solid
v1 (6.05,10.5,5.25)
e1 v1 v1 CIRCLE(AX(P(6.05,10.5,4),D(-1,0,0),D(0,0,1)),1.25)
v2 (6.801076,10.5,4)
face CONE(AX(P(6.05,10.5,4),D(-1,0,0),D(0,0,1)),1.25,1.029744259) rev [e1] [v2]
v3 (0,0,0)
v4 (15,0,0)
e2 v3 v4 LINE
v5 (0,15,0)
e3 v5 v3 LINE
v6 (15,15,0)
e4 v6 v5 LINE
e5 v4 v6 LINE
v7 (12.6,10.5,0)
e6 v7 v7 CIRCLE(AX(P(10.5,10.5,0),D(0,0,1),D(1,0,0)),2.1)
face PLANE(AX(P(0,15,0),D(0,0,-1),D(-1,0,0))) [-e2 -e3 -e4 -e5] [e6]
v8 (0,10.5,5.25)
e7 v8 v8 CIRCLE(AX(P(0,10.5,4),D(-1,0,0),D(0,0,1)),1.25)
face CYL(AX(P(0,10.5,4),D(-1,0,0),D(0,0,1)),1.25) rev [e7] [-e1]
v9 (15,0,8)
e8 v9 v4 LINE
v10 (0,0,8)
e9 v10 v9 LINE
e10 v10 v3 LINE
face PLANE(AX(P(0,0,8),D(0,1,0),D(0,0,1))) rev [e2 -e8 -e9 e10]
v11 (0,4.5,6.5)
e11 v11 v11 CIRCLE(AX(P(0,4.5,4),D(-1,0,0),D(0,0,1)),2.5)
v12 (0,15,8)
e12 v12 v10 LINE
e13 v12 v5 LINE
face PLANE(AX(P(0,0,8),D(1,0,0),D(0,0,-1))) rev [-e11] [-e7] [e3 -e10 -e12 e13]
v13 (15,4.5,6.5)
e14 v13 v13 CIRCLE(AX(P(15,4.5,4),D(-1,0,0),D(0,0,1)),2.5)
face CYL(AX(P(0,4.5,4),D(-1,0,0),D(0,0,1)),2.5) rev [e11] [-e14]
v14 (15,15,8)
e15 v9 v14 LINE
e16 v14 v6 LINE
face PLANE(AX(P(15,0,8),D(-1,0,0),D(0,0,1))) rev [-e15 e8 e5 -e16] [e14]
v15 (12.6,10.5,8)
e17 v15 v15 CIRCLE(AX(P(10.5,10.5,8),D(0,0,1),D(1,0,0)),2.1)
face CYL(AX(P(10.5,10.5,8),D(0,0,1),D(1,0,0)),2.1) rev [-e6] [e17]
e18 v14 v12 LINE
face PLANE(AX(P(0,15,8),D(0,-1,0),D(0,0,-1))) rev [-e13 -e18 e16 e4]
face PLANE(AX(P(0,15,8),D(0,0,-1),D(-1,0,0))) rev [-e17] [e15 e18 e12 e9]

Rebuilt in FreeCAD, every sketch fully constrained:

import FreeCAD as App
import Part
import Sketcher


def add_polygon(sketch, points):
    """Adds a closed chain of lines whose ends are joined by coincident constraints."""
    first, n = sketch.GeometryCount, len(points)
    for a, b in zip(points, points[1:] + points[:1]):
        sketch.addGeometry(Part.LineSegment(App.Vector(*a, 0), App.Vector(*b, 0)), False)
    for i in range(n):
        sketch.addConstraint(Sketcher.Constraint("Coincident", first + i, 2, first + (i + 1) % n, 1))

doc = App.newDocument("Part")
body = doc.addObject("PartDesign::Body", "Body")

# Sketch on XY plane
sketch1 = doc.addObject("Sketcher::SketchObject", "Sketch")
body.addObject(sketch1)
sketch1.AttachmentSupport = (doc.XY_Plane, [""])
sketch1.MapMode = "FlatFace"
add_polygon(sketch1, [(0, 15), (0, 0), (15, 0), (15, 15)])  # lines 0-3
sketch1.addConstraint([
    Sketcher.Constraint("Vertical", 0),
    Sketcher.Constraint("Horizontal", 1),
    Sketcher.Constraint("Vertical", 2),
    Sketcher.Constraint("Horizontal", 3),
    Sketcher.Constraint("Coincident", 0, 2, -1, 1),
    Sketcher.Constraint("Equal", 3, 0),
    Sketcher.Constraint("DistanceX", 1, 1, 1, 2, 15.0),
])
pad1 = doc.addObject("PartDesign::Pad", "Pad")
body.addObject(pad1)
pad1.Profile = sketch1
pad1.Length = 8

# Sketch on XY plane
sketch2 = doc.addObject("Sketcher::SketchObject", "Sketch001")
body.addObject(sketch2)
sketch2.AttachmentSupport = (doc.XY_Plane, [""])
sketch2.MapMode = "FlatFace"
sketch2.AttachmentOffset = App.Placement(App.Vector(0, 0, 8), App.Rotation())
sketch2.addGeometry(Part.Circle(App.Vector(10.5, 10.5, 0), App.Vector(0, 0, 1), 2.1), False)
sketch2.addConstraint([
    Sketcher.Constraint("Diameter", 0, 4.2),
    Sketcher.Constraint("DistanceX", -1, 1, 0, 3, 10.5),
    Sketcher.Constraint("DistanceY", -1, 1, 0, 3, 10.5),
])
doc.recompute()
hole = doc.addObject("PartDesign::Hole", "Hole")
body.addObject(hole)
hole.Profile = sketch2
hole.ThreadType = "None"
hole.Diameter = 4.2
hole.DepthType = "ThroughAll"

# Sketch on YZ plane
sketch3 = doc.addObject("Sketcher::SketchObject", "Sketch002")
body.addObject(sketch3)
sketch3.AttachmentSupport = (doc.YZ_Plane, [""])
sketch3.MapMode = "FlatFace"
sketch3.addGeometry(Part.Circle(App.Vector(4.5, 4, 0), App.Vector(0, 0, 1), 2.5), False)
sketch3.addConstraint([
    Sketcher.Constraint("Diameter", 0, 5.0),
    Sketcher.Constraint("DistanceY", -1, 1, 0, 3, 4.0),
    Sketcher.Constraint("DistanceX", -1, 1, 0, 3, 4.5),
])
doc.recompute()
hole2 = doc.addObject("PartDesign::Hole", "Hole001")
body.addObject(hole2)
hole2.Profile = sketch3
hole2.ThreadType = "None"
hole2.Diameter = 5
hole2.DepthType = "ThroughAll"
hole2.Reversed = True

# Sketch on YZ plane
sketch4 = doc.addObject("Sketcher::SketchObject", "Sketch003")
body.addObject(sketch4)
sketch4.AttachmentSupport = (doc.YZ_Plane, [""])
sketch4.MapMode = "FlatFace"
sketch4.addGeometry(Part.Circle(App.Vector(10.5, 4, 0), App.Vector(0, 0, 1), 1.25), False)
sketch4.addConstraint([
    Sketcher.Constraint("Diameter", 0, 2.5),
    Sketcher.Constraint("DistanceY", -1, 1, 0, 3, 4.0),
    Sketcher.Constraint("DistanceX", -1, 1, 0, 3, 10.5),
])
doc.recompute()
hole3 = doc.addObject("PartDesign::Hole", "Hole002")
body.addObject(hole3)
hole3.Profile = sketch4
hole3.ThreadType = "None"
hole3.Diameter = 2.5
hole3.DepthType = "Dimension"
hole3.Depth = 6.05
hole3.DrillPoint = "Angled"
hole3.DrillPointAngle = 118
hole3.Reversed = True

doc.recompute()
